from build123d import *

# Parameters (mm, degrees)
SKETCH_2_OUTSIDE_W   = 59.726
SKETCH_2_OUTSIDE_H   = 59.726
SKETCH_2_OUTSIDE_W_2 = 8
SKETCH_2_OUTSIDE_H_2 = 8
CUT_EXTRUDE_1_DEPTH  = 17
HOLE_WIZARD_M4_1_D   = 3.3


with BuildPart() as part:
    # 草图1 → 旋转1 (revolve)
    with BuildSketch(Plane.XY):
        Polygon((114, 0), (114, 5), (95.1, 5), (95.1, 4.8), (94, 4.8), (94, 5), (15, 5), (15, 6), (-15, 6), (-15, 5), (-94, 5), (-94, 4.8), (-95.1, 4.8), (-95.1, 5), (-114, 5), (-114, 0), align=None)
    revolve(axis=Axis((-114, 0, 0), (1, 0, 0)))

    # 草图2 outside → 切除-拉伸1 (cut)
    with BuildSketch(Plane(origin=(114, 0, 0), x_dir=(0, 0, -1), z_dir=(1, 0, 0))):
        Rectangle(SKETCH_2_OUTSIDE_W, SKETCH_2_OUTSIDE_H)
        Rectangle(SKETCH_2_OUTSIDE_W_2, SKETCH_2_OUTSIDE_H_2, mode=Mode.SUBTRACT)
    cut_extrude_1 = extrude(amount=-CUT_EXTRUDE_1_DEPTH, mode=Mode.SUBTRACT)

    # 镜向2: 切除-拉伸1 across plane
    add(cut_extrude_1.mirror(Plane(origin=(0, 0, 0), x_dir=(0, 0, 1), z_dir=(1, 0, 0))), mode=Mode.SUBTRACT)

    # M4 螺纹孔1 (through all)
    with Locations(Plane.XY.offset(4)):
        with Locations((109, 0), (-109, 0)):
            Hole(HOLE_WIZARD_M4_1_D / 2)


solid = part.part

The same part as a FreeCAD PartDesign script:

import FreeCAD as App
import Part
import Sketcher
from FreeCAD import Vector

doc = App.newDocument("Part")
body = doc.addObject("PartDesign::Body", "Body")

sketch1 = body.newObject("Sketcher::SketchObject", "Sketch")
sketch1.AttachmentSupport = (doc.getObject("XY_Plane"), [""])
sketch1.MapMode = "FlatFace"
sketch1.addGeometry(Part.LineSegment(Vector(114, 0, 0), Vector(114, 5, 0)), False)
sketch1.addGeometry(Part.LineSegment(Vector(114, 5, 0), Vector(95.1, 5, 0)), False)
sketch1.addGeometry(Part.LineSegment(Vector(95.1, 5, 0), Vector(95.1, 4.8, 0)), False)
sketch1.addGeometry(Part.LineSegment(Vector(95.1, 4.8, 0), Vector(94, 4.8, 0)), False)
sketch1.addGeometry(Part.LineSegment(Vector(94, 4.8, 0), Vector(94, 5, 0)), False)
sketch1.addGeometry(Part.LineSegment(Vector(94, 5, 0), Vector(15, 5, 0)), False)
sketch1.addGeometry(Part.LineSegment(Vector(15, 5, 0), Vector(15, 6, 0)), False)
sketch1.addGeometry(Part.LineSegment(Vector(15, 6, 0), Vector(-15, 6, 0)), False)
sketch1.addGeometry(Part.LineSegment(Vector(-15, 6, 0), Vector(-15, 5, 0)), False)
sketch1.addGeometry(Part.LineSegment(Vector(-15, 5, 0), Vector(-94, 5, 0)), False)
sketch1.addGeometry(Part.LineSegment(Vector(-94, 5, 0), Vector(-94, 4.8, 0)), False)
sketch1.addGeometry(Part.LineSegment(Vector(-94, 4.8, 0), Vector(-95.1, 4.8, 0)), False)
sketch1.addGeometry(Part.LineSegment(Vector(-95.1, 4.8, 0), Vector(-95.1, 5, 0)), False)
sketch1.addGeometry(Part.LineSegment(Vector(-95.1, 5, 0), Vector(-114, 5, 0)), False)
sketch1.addGeometry(Part.LineSegment(Vector(-114, 5, 0), Vector(-114, 0, 0)), False)
sketch1.addGeometry(Part.LineSegment(Vector(-114, 0, 0), Vector(114, 0, 0)), False)
sketch1.addConstraint(Sketcher.Constraint("Coincident", 0, 2, 1, 1))
sketch1.addConstraint(Sketcher.Constraint("Coincident", 1, 2, 2, 1))
sketch1.addConstraint(Sketcher.Constraint("Coincident", 2, 2, 3, 1))
sketch1.addConstraint(Sketcher.Constraint("Coincident", 3, 2, 4, 1))
sketch1.addConstraint(Sketcher.Constraint("Coincident", 4, 2, 5, 1))
sketch1.addConstraint(Sketcher.Constraint("Coincident", 5, 2, 6, 1))
sketch1.addConstraint(Sketcher.Constraint("Coincident", 6, 2, 7, 1))
sketch1.addConstraint(Sketcher.Constraint("Coincident", 7, 2, 8, 1))
sketch1.addConstraint(Sketcher.Constraint("Coincident", 8, 2, 9, 1))
sketch1.addConstraint(Sketcher.Constraint("Coincident", 9, 2, 10, 1))
sketch1.addConstraint(Sketcher.Constraint("Coincident", 10, 2, 11, 1))
sketch1.addConstraint(Sketcher.Constraint("Coincident", 11, 2, 12, 1))
sketch1.addConstraint(Sketcher.Constraint("Coincident", 12, 2, 13, 1))
sketch1.addConstraint(Sketcher.Constraint("Coincident", 13, 2, 14, 1))
sketch1.addConstraint(Sketcher.Constraint("Coincident", 14, 2, 15, 1))
sketch1.addConstraint(Sketcher.Constraint("Coincident", 15, 2, 0, 1))
sketch1.addConstraint(Sketcher.Constraint("Vertical", 0))
sketch1.addConstraint(Sketcher.Constraint("Horizontal", 1))
sketch1.addConstraint(Sketcher.Constraint("Vertical", 2))
sketch1.addConstraint(Sketcher.Constraint("Horizontal", 3))
sketch1.addConstraint(Sketcher.Constraint("Vertical", 4))
sketch1.addConstraint(Sketcher.Constraint("Horizontal", 5))
sketch1.addConstraint(Sketcher.Constraint("Vertical", 6))
sketch1.addConstraint(Sketcher.Constraint("Horizontal", 7))
sketch1.addConstraint(Sketcher.Constraint("Vertical", 8))
sketch1.addConstraint(Sketcher.Constraint("Horizontal", 9))
sketch1.addConstraint(Sketcher.Constraint("Vertical", 10))
sketch1.addConstraint(Sketcher.Constraint("Horizontal", 11))
sketch1.addConstraint(Sketcher.Constraint("Vertical", 12))
sketch1.addConstraint(Sketcher.Constraint("Horizontal", 13))
sketch1.addConstraint(Sketcher.Constraint("Vertical", 14))
sketch1.addConstraint(Sketcher.Constraint("Horizontal", 15))
sketch1.addConstraint(Sketcher.Constraint("Symmetric", 14, 2, 15, 2, -1, 1))
sketch1.addConstraint(Sketcher.Constraint("Symmetric", 5, 2, 8, 2, -2))
sketch1.addConstraint(Sketcher.Constraint("Symmetric", 3, 2, 10, 2, -2))
sketch1.addConstraint(Sketcher.Constraint("Symmetric", 1, 2, 12, 2, -2))
sketch1.addConstraint(Sketcher.Constraint("Horizontal", 1, 2, 4, 2))
sketch1.addConstraint(Sketcher.Constraint("DistanceX", 5, 2, 5, 1, 79.0))
sketch1.addConstraint(Sketcher.Constraint("DistanceX", 7, 2, 7, 1, 30.0))
sketch1.addConstraint(Sketcher.Constraint("DistanceX", 15, 1, 15, 2, 228.0))
sketch1.addConstraint(Sketcher.Constraint("DistanceY", 0, 1, 0, 2, 5.0))
sketch1.addConstraint(Sketcher.Constraint("DistanceY", 6, 1, 6, 2, 1.0))
sketch1.addConstraint(Sketcher.Constraint("DistanceX", 1, 2, 1, 1, 18.9))
sketch1.addConstraint(Sketcher.Constraint("DistanceY", 2, 2, 2, 1, 0.2))
revolution = body.newObject("PartDesign::Revolution", "Revolution")
revolution.Profile = sketch1
revolution.ReferenceAxis = (sketch1, ["H_Axis"])
revolution.Angle = 360

sketch2 = body.newObject("Sketcher::SketchObject", "Sketch001")
sketch2.AttachmentSupport = (doc.getObject("YZ_Plane"), [""])
sketch2.MapMode = "FlatFace"
sketch2.AttachmentOffset = App.Placement(Vector(0, 0, 114), App.Rotation())
sketch2.addGeometry(Part.LineSegment(Vector(30, 30, 0), Vector(-30, 30, 0)), False)
sketch2.addGeometry(Part.LineSegment(Vector(-30, 30, 0), Vector(-30, -30, 0)), False)
sketch2.addGeometry(Part.LineSegment(Vector(-30, -30, 0), Vector(30, -30, 0)), False)
sketch2.addGeometry(Part.LineSegment(Vector(30, -30, 0), Vector(30, 30, 0)), False)
sketch2.addGeometry(Part.LineSegment(Vector(-4, -4, 0), Vector(-4, 4, 0)), False)
sketch2.addGeometry(Part.LineSegment(Vector(-4, 4, 0), Vector(4, 4, 0)), False)
sketch2.addGeometry(Part.LineSegment(Vector(4, 4, 0), Vector(4, -4, 0)), False)
sketch2.addGeometry(Part.LineSegment(Vector(4, -4, 0), Vector(-4, -4, 0)), False)
sketch2.addConstraint(Sketcher.Constraint("Coincident", 0, 2, 1, 1))
sketch2.addConstraint(Sketcher.Constraint("Coincident", 1, 2, 2, 1))
sketch2.addConstraint(Sketcher.Constraint("Coincident", 2, 2, 3, 1))
sketch2.addConstraint(Sketcher.Constraint("Coincident", 3, 2, 0, 1))
sketch2.addConstraint(Sketcher.Constraint("Coincident", 4, 2, 5, 1))
sketch2.addConstraint(Sketcher.Constraint("Coincident", 5, 2, 6, 1))
sketch2.addConstraint(Sketcher.Constraint("Coincident", 6, 2, 7, 1))
sketch2.addConstraint(Sketcher.Constraint("Coincident", 7, 2, 4, 1))
sketch2.addConstraint(Sketcher.Constraint("Horizontal", 0))
sketch2.addConstraint(Sketcher.Constraint("Vertical", 1))
sketch2.addConstraint(Sketcher.Constraint("Horizontal", 2))
sketch2.addConstraint(Sketcher.Constraint("Vertical", 3))
sketch2.addConstraint(Sketcher.Constraint("Vertical", 4))
sketch2.addConstraint(Sketcher.Constraint("Horizontal", 5))
sketch2.addConstraint(Sketcher.Constraint("Vertical", 6))
sketch2.addConstraint(Sketcher.Constraint("Horizontal", 7))
sketch2.addConstraint(Sketcher.Constraint("Symmetric", 0, 2, 2, 2, -1, 1))
sketch2.addConstraint(Sketcher.Constraint("Symmetric", 4, 2, 6, 2, -1, 1))
sketch2.addConstraint(Sketcher.Constraint("Equal", 2, 1))
sketch2.addConstraint(Sketcher.Constraint("Equal", 7, 4))
sketch2.addConstraint(Sketcher.Constraint("DistanceX", 5, 1, 5, 2, 8.0))
sketch2.addConstraint(Sketcher.Constraint("DistanceX", 0, 2, 0, 1, 59.726))
pocket1 = body.newObject("PartDesign::Pocket", "Pocket")
pocket1.Profile = sketch2
pocket1.Length = 17
doc.recompute()

mirrored = body.newObject("PartDesign::Mirrored", "Mirrored")
mirrored.Originals = [pocket1]
mirrored.MirrorPlane = (doc.getObject("YZ_Plane"), [""])
body.Tip = mirrored

sketch3 = body.newObject("Sketcher::SketchObject", "Sketch002")
sketch3.AttachmentSupport = (doc.getObject("XY_Plane"), [""])
sketch3.MapMode = "FlatFace"
sketch3.AttachmentOffset = App.Placement(Vector(0, 0, 4), App.Rotation())
sketch3.addGeometry(Part.Circle(Vector(109, 0, 0), Vector(0, 0, 1), 1.6), False)
sketch3.addGeometry(Part.Circle(Vector(-109, 0, 0), Vector(0, 0, 1), 1.6), False)
sketch3.addConstraint(Sketcher.Constraint("Equal", 0, 1))
sketch3.addConstraint(Sketcher.Constraint("Symmetric", 0, 3, 1, 3, -1, 1))
sketch3.addConstraint(Sketcher.Constraint("PointOnObject", 0, 3, -1))
sketch3.addConstraint(Sketcher.Constraint("Diameter", 0, 3.3))
sketch3.addConstraint(Sketcher.Constraint("DistanceX", -1, 1, 0, 3, 109.0))
doc.recompute()
hole = body.newObject("PartDesign::Hole", "Hole")
hole.Profile = sketch3
hole.ThreadType = "None"
hole.Diameter = 3.3
hole.DepthType = "ThroughAll"

doc.recompute()
